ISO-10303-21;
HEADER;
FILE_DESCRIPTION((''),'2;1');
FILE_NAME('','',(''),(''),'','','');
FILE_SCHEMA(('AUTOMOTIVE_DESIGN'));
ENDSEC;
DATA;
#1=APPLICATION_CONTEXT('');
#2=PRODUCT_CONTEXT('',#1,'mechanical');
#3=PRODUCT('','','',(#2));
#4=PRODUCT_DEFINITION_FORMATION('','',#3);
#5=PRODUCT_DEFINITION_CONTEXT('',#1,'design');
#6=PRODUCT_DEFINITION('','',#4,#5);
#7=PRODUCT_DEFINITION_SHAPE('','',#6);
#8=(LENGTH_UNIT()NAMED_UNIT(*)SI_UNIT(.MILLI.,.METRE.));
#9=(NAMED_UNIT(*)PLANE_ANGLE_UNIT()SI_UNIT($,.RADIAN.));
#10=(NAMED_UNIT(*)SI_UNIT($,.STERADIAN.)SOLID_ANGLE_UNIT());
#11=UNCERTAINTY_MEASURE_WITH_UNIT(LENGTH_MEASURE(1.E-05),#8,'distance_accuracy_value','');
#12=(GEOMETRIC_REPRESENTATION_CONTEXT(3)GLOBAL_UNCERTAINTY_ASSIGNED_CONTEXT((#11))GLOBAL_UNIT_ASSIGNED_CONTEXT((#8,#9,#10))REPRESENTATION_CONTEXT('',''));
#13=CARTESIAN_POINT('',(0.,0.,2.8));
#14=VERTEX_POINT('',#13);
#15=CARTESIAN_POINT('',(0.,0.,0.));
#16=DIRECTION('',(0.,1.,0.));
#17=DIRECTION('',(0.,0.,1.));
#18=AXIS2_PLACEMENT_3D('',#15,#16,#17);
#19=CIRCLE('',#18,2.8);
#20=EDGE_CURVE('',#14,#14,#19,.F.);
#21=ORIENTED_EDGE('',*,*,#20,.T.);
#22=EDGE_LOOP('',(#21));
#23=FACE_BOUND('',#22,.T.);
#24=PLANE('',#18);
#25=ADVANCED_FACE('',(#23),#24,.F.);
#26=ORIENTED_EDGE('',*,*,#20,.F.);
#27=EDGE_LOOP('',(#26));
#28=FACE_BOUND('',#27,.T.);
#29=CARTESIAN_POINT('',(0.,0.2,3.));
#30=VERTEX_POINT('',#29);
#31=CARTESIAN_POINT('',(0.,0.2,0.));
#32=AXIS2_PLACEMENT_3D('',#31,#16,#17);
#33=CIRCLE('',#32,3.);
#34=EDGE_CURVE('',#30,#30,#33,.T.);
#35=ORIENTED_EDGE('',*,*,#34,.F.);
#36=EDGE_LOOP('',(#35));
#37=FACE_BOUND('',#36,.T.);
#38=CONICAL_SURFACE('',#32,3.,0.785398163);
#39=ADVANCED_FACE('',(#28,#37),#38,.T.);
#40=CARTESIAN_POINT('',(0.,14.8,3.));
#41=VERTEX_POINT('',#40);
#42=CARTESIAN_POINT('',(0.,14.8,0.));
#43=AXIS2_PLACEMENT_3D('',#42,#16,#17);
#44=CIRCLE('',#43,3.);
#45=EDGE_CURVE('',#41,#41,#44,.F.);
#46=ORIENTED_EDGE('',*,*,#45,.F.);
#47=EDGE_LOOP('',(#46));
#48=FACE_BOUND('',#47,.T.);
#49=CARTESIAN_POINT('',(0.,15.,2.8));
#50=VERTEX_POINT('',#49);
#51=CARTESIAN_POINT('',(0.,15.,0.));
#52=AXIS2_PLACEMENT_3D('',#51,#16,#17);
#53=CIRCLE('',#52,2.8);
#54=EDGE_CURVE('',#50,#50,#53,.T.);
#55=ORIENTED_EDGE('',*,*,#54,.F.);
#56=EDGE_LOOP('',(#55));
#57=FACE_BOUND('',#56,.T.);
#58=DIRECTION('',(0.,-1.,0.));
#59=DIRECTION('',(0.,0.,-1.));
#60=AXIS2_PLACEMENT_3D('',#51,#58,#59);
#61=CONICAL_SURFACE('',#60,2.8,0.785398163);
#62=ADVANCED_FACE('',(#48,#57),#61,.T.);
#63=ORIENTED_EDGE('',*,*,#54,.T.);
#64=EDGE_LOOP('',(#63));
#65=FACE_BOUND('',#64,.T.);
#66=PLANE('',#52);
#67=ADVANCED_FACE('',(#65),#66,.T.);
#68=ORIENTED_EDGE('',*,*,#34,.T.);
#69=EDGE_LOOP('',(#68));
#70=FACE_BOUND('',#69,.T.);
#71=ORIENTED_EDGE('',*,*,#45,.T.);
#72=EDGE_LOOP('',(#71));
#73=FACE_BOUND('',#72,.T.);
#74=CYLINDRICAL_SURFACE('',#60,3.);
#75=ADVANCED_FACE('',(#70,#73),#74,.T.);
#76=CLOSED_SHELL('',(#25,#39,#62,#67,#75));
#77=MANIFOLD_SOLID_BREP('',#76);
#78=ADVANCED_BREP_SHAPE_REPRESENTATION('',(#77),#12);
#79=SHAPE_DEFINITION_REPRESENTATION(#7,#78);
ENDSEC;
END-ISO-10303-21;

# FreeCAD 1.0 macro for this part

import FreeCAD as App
import Part
import Sketcher
from FreeCAD import Vector
Q = App.Units.Quantity


def edges_at(feature, points):
    """Names of the edges that pass closest to the given points."""
    edges = feature.Shape.Edges
    near = lambda p: min(range(len(edges)), key=lambda i: edges[i].distToShape(Part.Vertex(*p))[0])
    return sorted({f"Edge{near(p) + 1}" for p in points})

doc = App.newDocument("Part")
body = doc.addObject("PartDesign::Body", "Body")

# Sketch on XZ plane
sketch1 = body.newObject("Sketcher::SketchObject", "Sketch")
sketch1.AttachmentSupport = (doc.getObject("XZ_Plane"), [""])
sketch1.MapMode = "FlatFace"
sketch1.addGeometry(Part.Circle(Vector(0, 0, 0), Vector(0, 0, 1), 3), False)
sketch1.addConstraint(Sketcher.Constraint("Coincident", 0, 3, -1, 1))
sketch1.addConstraint(Sketcher.Constraint("Diameter", 0, Q("6 mm")))
pad1 = body.newObject("PartDesign::Pad", "Pad")
pad1.Profile = sketch1
pad1.Length = 15
pad1.Reversed = True
doc.recompute()

chamfer = body.newObject("PartDesign::Chamfer", "Chamfer")
chamfer.Base = (pad1, edges_at(pad1, [(0, 0, -3), (0, 15, -3)]))
chamfer.Size = 0.2

doc.recompute()
